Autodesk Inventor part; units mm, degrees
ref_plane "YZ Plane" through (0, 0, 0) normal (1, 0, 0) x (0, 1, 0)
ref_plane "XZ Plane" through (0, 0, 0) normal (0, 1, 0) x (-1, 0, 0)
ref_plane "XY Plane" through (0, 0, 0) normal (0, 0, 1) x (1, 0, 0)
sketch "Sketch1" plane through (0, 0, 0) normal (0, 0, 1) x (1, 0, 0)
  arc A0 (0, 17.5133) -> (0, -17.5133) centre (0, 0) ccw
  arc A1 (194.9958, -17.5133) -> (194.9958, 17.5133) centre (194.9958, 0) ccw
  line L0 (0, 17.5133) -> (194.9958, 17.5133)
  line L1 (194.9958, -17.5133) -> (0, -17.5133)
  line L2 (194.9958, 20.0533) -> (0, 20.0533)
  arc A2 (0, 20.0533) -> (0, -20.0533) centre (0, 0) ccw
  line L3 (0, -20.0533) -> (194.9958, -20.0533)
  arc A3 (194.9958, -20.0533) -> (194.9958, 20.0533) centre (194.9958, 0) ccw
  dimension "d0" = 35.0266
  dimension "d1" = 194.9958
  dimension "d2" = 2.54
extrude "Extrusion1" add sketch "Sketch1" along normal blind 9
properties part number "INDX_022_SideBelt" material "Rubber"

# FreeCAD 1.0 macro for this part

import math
import FreeCAD as App
import Part
import Sketcher
from FreeCAD import Vector
Q = App.Units.Quantity

doc = App.newDocument("Part")
body = doc.addObject("PartDesign::Body", "Body")

sketch1 = body.newObject("Sketcher::SketchObject", "Sketch")
sketch1.AttachmentSupport = (doc.getObject("XY_Plane"), [""])
sketch1.MapMode = "FlatFace"
sketch1.addGeometry([
    Part.ArcOfCircle(Part.Circle(Vector(194.9958, 0, 0), Vector(0, 0, 1), 20.0533), math.radians(-90), math.radians(90)),
    Part.LineSegment(Vector(194.9958, 20.0533, 0), Vector(0, 20.0533, 0)),
    Part.ArcOfCircle(Part.Circle(Vector(0, 0, 0), Vector(0, 0, 1), 20.0533), math.radians(90), math.radians(270)),
    Part.LineSegment(Vector(0, -20.0533, 0), Vector(194.9958, -20.0533, 0)),
    Part.ArcOfCircle(Part.Circle(Vector(0, 0, 0), Vector(0, 0, 1), 17.5133), math.radians(90), math.radians(270)),
    Part.LineSegment(Vector(0, 17.5133, 0), Vector(194.9958, 17.5133, 0)),
    Part.ArcOfCircle(Part.Circle(Vector(194.9958, 0, 0), Vector(0, 0, 1), 17.5133), math.radians(-90), math.radians(90)),
    Part.LineSegment(Vector(194.9958, -17.5133, 0), Vector(0, -17.5133, 0)),
], False)
sketch1.addConstraint([
    Sketcher.Constraint("Tangent", 0, 2, 1, 1),
    Sketcher.Constraint("Tangent", 1, 2, 2, 1),
    Sketcher.Constraint("Tangent", 2, 2, 3, 1),
    Sketcher.Constraint("Tangent", 3, 2, 0, 1),
    Sketcher.Constraint("Tangent", 4, 1, 5, 1),
    Sketcher.Constraint("Tangent", 5, 2, 6, 2),
    Sketcher.Constraint("Tangent", 6, 1, 7, 1),
    Sketcher.Constraint("Tangent", 7, 2, 4, 2),
    Sketcher.Constraint("Horizontal", 1),
    Sketcher.Constraint("Horizontal", 3),
    Sketcher.Constraint("Horizontal", 5),
    Sketcher.Constraint("Horizontal", 7),
    Sketcher.Constraint("Coincident", 2, 3, -1, 1),
    Sketcher.Constraint("Coincident", 4, 3, -1, 1),
    Sketcher.Constraint("Vertical", 6, 3, 0, 2),
    Sketcher.Constraint("Radius", 4, Q("0.6895 in")),
    Sketcher.Constraint("DistanceY", 4, 1, 1, 2, Q("0.1 in")),
    Sketcher.Constraint("DistanceX", 1, 2, 1, 1, Q("7.677 in")),
])
pad1 = body.newObject("PartDesign::Pad", "Pad")
pad1.Profile = sketch1
pad1.Length = 9

doc.recompute()
